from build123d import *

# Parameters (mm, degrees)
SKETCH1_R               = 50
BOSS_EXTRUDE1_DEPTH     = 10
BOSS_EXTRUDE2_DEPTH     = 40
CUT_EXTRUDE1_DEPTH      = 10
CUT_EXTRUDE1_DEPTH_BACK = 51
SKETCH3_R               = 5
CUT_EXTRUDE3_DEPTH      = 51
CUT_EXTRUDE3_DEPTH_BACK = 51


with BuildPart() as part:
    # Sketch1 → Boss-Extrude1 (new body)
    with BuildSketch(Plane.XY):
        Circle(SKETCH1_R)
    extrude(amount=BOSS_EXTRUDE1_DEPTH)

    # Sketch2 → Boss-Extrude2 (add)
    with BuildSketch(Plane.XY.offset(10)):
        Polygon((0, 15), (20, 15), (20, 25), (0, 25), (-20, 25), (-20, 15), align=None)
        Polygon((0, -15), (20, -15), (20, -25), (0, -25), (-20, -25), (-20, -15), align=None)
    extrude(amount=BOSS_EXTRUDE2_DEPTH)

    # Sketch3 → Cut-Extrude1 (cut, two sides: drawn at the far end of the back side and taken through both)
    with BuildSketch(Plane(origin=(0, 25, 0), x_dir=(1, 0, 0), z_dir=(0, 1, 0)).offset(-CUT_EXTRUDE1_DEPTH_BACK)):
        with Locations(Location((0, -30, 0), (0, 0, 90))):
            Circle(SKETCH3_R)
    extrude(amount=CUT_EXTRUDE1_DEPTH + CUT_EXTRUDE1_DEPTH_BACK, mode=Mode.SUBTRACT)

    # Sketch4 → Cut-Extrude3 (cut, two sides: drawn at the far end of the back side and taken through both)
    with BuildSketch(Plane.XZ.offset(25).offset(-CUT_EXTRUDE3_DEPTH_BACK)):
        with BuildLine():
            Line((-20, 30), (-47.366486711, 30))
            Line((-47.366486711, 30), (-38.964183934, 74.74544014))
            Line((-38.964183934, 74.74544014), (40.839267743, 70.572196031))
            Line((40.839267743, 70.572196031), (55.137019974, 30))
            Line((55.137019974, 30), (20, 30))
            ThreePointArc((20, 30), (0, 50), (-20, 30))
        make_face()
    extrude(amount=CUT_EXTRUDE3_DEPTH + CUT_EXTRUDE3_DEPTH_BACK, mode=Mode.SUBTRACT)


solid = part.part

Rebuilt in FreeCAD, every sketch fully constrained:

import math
import FreeCAD as App
import Part
import Sketcher

doc = App.newDocument("Part")
params = doc.addObject("Spreadsheet::Sheet", "Params")
for row, (alias, value) in enumerate([
    ("sketch1_diameter", "100 mm"),
    ("pad1_length", "10 mm"),
    ("sketch2_width", "40 mm"),
    ("sketch2_height", "10 mm"),
    ("pad2_length", "40 mm"),
    ("sketch3_diameter", "10 mm"),
    ("sketch4_radius", "20 mm"),
], start=1):
    params.set(f"A{row}", alias)
    params.set(f"B{row}", "=" + value)
    params.setAlias(f"B{row}", alias)

body = doc.addObject("PartDesign::Body", "Body")

# Sketch on XY plane
sketch1 = doc.addObject("Sketcher::SketchObject", "Sketch")
body.addObject(sketch1)
sketch1.AttachmentSupport = (doc.XY_Plane, [""])
sketch1.MapMode = "FlatFace"
sketch1.addGeometry(Part.Circle(App.Vector(0, 0, 0), App.Vector(0, 0, 1), 50), False)
sketch1.addConstraint([
    Sketcher.Constraint("Coincident", 0, 3, -1, 1),
    Sketcher.Constraint("Diameter", 0, 100.0),
])
sketch1.setExpression("Constraints[1]", "Params.sketch1_diameter")
pad1 = doc.addObject("PartDesign::Pad", "Pad")
body.addObject(pad1)
pad1.Profile = sketch1
pad1.setExpression("Length", "Params.pad1_length")

# Sketch on XY plane
sketch2 = doc.addObject("Sketcher::SketchObject", "Sketch001")
body.addObject(sketch2)
sketch2.AttachmentSupport = (doc.XY_Plane, [""])
sketch2.MapMode = "FlatFace"
sketch2.AttachmentOffset = App.Placement(App.Vector(0, 0, 10), App.Rotation())
sketch2.addGeometry([
    Part.LineSegment(App.Vector(20, 15, 0), App.Vector(20, 25, 0)),  # 0
    Part.LineSegment(App.Vector(20, 25, 0), App.Vector(-20, 25, 0)),  # 1
    Part.LineSegment(App.Vector(-20, 25, 0), App.Vector(-20, 15, 0)),  # 2
    Part.LineSegment(App.Vector(-20, 15, 0), App.Vector(20, 15, 0)),  # 3
    Part.LineSegment(App.Vector(20, -15, 0), App.Vector(-20, -15, 0)),  # 4
    Part.LineSegment(App.Vector(-20, -15, 0), App.Vector(-20, -25, 0)),  # 5
    Part.LineSegment(App.Vector(-20, -25, 0), App.Vector(20, -25, 0)),  # 6
    Part.LineSegment(App.Vector(20, -25, 0), App.Vector(20, -15, 0)),  # 7
], False)
sketch2.addConstraint([
    Sketcher.Constraint("Coincident", 0, 2, 1, 1),
    Sketcher.Constraint("Coincident", 1, 2, 2, 1),
    Sketcher.Constraint("Coincident", 2, 2, 3, 1),
    Sketcher.Constraint("Coincident", 3, 2, 0, 1),
    Sketcher.Constraint("Coincident", 4, 2, 5, 1),
    Sketcher.Constraint("Coincident", 5, 2, 6, 1),
    Sketcher.Constraint("Coincident", 6, 2, 7, 1),
    Sketcher.Constraint("Coincident", 7, 2, 4, 1),
    Sketcher.Constraint("Vertical", 0),
    Sketcher.Constraint("Horizontal", 1),
    Sketcher.Constraint("Vertical", 2),
    Sketcher.Constraint("Horizontal", 3),
    Sketcher.Constraint("Horizontal", 4),
    Sketcher.Constraint("Vertical", 5),
    Sketcher.Constraint("Horizontal", 6),
    Sketcher.Constraint("Vertical", 7),
    Sketcher.Constraint("Symmetric", 3, 2, 4, 2, -1, 1),
    Sketcher.Constraint("Symmetric", 1, 2, 6, 2, -1, 1),
    Sketcher.Constraint("Vertical", 2, 2, 4, 2),
    Sketcher.Constraint("DistanceX", 1, 2, 1, 1, 40.0),
    Sketcher.Constraint("DistanceY", 0, 1, 0, 2, 10.0),
    Sketcher.Constraint("DistanceY", -1, 1, 0, 2, 25.0),
])
sketch2.setExpression("Constraints[19]", "Params.sketch2_width")
sketch2.setExpression("Constraints[20]", "Params.sketch2_height")
pad2 = doc.addObject("PartDesign::Pad", "Pad001")
body.addObject(pad2)
pad2.Profile = sketch2
pad2.setExpression("Length", "Params.pad2_length")

# Sketch on XZ plane
sketch3 = doc.addObject("Sketcher::SketchObject", "Sketch002")
body.addObject(sketch3)
sketch3.AttachmentSupport = (doc.XZ_Plane, [""])
sketch3.MapMode = "FlatFace"
sketch3.AttachmentOffset = App.Placement(App.Vector(0, 0, -25), App.Rotation())
sketch3.addGeometry(Part.Circle(App.Vector(0, 30, 0), App.Vector(0, 0, 1), 5), False)
sketch3.addConstraint([
    Sketcher.Constraint("PointOnObject", 0, 3, -2),
    Sketcher.Constraint("Diameter", 0, 10.0),
    Sketcher.Constraint("DistanceY", -1, 1, 0, 3, 30.0),
])
sketch3.setExpression("Constraints[1]", "Params.sketch3_diameter")
pocket1 = doc.addObject("PartDesign::Pocket", "Pocket")
body.addObject(pocket1)
pocket1.Profile = sketch3
pocket1.Type = "ThroughAll"
pocket1.Midplane = True

# Sketch on XZ plane
sketch4 = doc.addObject("Sketcher::SketchObject", "Sketch003")
body.addObject(sketch4)
sketch4.AttachmentSupport = (doc.XZ_Plane, [""])
sketch4.MapMode = "FlatFace"
sketch4.AttachmentOffset = App.Placement(App.Vector(0, 0, 25), App.Rotation())
sketch4.addGeometry([
    Part.LineSegment(App.Vector(-47, 30, 0), App.Vector(-20, 30, 0)),  # 0
    Part.ArcOfCircle(Part.Circle(App.Vector(0, 30, 0), App.Vector(0, 0, 1), 20), math.radians(0), math.radians(180)),  # 1
    Part.LineSegment(App.Vector(20, 30, 0), App.Vector(55, 30, 0)),  # 2
    Part.LineSegment(App.Vector(55, 30, 0), App.Vector(41, 71, 0)),  # 3
    Part.LineSegment(App.Vector(41, 71, 0), App.Vector(-39, 75, 0)),  # 4
    Part.LineSegment(App.Vector(-39, 75, 0), App.Vector(-47, 30, 0)),  # 5
], False)
sketch4.addConstraint([
    Sketcher.Constraint("Coincident", 0, 2, 1, 2),
    Sketcher.Constraint("Coincident", 1, 1, 2, 1),
    Sketcher.Constraint("Coincident", 2, 2, 3, 1),
    Sketcher.Constraint("Coincident", 3, 2, 4, 1),
    Sketcher.Constraint("Coincident", 4, 2, 5, 1),
    Sketcher.Constraint("Coincident", 5, 2, 0, 1),
    Sketcher.Constraint("Horizontal", 0),
    Sketcher.Constraint("Horizontal", 2),
    Sketcher.Constraint("Symmetric", 0, 2, 1, 1, -2),
    Sketcher.Constraint("Horizontal", 1, 3, 0, 2),
    Sketcher.Constraint("Radius", 1, 20.0),
    Sketcher.Constraint("DistanceY", -1, 1, 1, 3, 30.0),
    Sketcher.Constraint("Distance", 5, 45.527498),
    Sketcher.Constraint("DistanceX", 2, 1, 2, 2, 35.13702),
    Sketcher.Constraint("DistanceX", 0, 1, 0, 2, 27.366487),
    Sketcher.Constraint("DistanceY", -1, 1, 4, 2, 74.74544),
    Sketcher.Constraint("DistanceX", 4, 2, 3, 2, 79.803452),
    Sketcher.Constraint("Distance", 3, 43.017773),
])
sketch4.setExpression("Constraints[10]", "Params.sketch4_radius")
pocket2 = doc.addObject("PartDesign::Pocket", "Pocket001")
body.addObject(pocket2)
pocket2.Profile = sketch4
pocket2.Type = "ThroughAll"
pocket2.Midplane = True

doc.recompute()
